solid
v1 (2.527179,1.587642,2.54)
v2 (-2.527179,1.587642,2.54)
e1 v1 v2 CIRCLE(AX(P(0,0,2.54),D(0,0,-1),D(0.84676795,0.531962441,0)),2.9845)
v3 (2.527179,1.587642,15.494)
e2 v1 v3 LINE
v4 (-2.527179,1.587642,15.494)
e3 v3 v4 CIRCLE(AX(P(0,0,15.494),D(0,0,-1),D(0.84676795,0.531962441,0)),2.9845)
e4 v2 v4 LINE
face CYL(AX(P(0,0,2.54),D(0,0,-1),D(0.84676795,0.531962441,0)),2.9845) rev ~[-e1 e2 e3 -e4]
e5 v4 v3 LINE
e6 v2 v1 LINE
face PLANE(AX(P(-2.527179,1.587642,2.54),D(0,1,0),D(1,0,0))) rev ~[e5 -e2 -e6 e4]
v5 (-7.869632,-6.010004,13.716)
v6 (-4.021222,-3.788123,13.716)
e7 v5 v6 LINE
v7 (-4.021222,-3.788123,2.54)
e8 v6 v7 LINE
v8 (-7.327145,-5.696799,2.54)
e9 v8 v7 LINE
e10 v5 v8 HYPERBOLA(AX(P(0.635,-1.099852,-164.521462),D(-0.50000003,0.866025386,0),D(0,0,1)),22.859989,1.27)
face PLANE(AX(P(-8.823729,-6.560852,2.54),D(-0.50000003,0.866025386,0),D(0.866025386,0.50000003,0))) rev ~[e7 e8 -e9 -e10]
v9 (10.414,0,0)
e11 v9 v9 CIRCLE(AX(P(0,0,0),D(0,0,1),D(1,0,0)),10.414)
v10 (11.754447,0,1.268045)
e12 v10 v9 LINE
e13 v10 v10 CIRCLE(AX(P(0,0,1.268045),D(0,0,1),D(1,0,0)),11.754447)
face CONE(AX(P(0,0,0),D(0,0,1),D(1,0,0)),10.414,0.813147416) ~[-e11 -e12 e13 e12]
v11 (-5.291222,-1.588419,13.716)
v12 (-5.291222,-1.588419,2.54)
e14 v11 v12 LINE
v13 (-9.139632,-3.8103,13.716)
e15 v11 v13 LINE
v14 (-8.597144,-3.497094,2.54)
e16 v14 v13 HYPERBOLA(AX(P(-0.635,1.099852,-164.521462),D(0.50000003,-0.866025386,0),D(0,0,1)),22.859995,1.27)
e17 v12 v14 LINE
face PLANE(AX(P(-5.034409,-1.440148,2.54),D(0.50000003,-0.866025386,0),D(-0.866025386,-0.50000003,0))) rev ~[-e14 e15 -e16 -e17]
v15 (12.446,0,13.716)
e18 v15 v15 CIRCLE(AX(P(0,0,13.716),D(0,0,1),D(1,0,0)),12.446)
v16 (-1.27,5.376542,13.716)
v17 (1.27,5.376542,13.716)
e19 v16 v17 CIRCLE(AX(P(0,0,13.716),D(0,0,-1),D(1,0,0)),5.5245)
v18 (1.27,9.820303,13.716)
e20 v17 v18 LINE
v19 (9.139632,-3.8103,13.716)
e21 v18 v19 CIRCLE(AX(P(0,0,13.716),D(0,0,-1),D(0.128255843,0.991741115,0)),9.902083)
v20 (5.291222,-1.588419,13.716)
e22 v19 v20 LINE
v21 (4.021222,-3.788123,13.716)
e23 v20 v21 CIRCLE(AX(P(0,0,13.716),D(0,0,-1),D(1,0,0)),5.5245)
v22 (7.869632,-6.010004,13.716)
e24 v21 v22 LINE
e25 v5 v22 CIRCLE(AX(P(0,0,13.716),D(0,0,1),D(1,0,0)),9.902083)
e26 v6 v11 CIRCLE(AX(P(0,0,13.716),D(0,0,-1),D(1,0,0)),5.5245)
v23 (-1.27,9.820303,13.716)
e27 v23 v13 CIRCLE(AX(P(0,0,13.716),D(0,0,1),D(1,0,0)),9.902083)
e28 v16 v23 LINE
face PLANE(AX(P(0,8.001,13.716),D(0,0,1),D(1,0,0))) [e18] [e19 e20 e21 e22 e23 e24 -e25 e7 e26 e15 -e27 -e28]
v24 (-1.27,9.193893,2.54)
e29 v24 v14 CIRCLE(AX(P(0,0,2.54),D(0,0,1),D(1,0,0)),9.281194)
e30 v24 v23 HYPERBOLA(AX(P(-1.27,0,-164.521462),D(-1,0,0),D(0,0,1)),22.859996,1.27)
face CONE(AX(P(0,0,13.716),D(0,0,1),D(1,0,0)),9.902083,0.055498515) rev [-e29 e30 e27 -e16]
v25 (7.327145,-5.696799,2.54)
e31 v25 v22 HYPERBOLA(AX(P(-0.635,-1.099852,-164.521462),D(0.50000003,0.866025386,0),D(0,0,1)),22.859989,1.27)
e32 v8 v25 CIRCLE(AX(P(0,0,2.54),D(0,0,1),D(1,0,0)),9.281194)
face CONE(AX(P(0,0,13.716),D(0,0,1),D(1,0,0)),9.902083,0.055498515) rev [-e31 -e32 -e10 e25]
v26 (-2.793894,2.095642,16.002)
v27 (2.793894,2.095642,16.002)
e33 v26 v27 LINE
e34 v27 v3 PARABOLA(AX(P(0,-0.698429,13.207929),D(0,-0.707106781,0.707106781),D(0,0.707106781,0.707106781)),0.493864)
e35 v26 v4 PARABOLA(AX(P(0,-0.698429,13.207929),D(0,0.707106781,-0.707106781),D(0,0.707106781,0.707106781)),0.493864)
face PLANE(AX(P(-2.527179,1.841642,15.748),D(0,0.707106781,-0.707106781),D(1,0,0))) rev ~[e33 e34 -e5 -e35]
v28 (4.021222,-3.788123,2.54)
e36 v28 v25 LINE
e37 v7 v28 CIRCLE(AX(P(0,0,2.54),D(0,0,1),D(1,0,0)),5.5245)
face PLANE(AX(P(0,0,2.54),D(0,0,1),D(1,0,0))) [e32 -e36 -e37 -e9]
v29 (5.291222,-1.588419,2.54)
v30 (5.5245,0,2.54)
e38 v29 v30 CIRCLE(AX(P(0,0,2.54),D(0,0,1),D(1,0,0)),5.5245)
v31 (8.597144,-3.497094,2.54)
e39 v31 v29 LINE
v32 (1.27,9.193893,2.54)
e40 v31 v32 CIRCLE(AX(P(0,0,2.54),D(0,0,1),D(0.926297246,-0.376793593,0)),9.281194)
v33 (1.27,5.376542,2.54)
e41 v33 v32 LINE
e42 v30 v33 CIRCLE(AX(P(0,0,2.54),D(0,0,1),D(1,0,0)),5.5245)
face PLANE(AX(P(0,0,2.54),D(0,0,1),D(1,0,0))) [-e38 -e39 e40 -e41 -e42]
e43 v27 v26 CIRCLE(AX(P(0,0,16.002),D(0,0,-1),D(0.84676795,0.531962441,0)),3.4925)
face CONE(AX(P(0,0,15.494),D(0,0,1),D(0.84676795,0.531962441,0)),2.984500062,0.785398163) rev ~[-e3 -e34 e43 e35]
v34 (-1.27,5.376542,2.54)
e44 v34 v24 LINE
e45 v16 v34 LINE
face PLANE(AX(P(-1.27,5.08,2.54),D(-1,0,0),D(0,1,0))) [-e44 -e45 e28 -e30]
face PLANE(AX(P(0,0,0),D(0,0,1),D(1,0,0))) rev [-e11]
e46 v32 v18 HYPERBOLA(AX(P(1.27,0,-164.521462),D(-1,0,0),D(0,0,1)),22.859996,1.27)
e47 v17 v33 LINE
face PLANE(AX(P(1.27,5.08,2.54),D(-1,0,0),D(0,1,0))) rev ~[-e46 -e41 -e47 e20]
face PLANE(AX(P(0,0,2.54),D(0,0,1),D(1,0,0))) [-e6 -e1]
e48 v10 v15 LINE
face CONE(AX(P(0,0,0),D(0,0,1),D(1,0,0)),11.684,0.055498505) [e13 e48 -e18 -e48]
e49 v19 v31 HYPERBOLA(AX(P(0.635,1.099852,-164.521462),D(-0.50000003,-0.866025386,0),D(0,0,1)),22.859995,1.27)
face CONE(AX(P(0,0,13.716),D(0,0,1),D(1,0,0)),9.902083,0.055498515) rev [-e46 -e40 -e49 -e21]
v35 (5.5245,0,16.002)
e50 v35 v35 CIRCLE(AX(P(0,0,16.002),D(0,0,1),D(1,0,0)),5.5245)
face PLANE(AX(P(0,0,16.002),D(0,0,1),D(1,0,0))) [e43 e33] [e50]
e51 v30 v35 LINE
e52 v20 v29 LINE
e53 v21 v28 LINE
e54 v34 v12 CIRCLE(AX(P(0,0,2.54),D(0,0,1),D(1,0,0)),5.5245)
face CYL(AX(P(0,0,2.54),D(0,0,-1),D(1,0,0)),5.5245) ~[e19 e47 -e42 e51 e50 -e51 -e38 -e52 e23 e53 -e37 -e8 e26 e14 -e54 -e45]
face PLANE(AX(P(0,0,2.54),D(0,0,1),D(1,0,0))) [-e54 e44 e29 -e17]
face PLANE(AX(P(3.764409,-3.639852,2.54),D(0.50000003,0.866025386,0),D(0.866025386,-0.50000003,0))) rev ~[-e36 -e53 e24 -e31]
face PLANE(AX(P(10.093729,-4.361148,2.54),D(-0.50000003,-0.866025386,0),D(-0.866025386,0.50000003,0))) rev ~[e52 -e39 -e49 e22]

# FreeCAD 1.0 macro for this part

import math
import FreeCAD as App
import Part
import Sketcher

V = App.Vector
Q = App.Units.Quantity


def edges_at(feature, points):
    """Names of the edges that pass closest to the given points."""
    edges = feature.Shape.Edges
    near = lambda p: min(range(len(edges)), key=lambda i: edges[i].distToShape(Part.Vertex(*p))[0])
    return sorted({f"Edge{near(p) + 1}" for p in points})

doc = App.newDocument("Part")
body = doc.addObject("PartDesign::Body", "Body")

sketch1 = body.newObject("Sketcher::SketchObject", "Sketch")
sketch1.AttachmentSupport = (doc.getObject("XZ_Plane"), [""])
sketch1.MapMode = "FlatFace"
sketch1.addGeometry(Part.LineSegment(V(0, 2.5, 0), V(0, 0, 0)), False)
sketch1.addGeometry(Part.LineSegment(V(0, 0, 0), V(11.7, 0, 0)), False)
sketch1.addGeometry(Part.LineSegment(V(11.7, 0, 0), V(12.4, 13.7, 0)), False)
sketch1.addGeometry(Part.LineSegment(V(12.4, 13.7, 0), V(9.9, 13.7, 0)), False)
sketch1.addGeometry(Part.LineSegment(V(9.9, 13.7, 0), V(9.3, 2.5, 0)), False)
sketch1.addGeometry(Part.LineSegment(V(9.3, 2.5, 0), V(0, 2.5, 0)), False)
sketch1.addConstraint(Sketcher.Constraint("Coincident", 0, 2, 1, 1))
sketch1.addConstraint(Sketcher.Constraint("Coincident", 1, 2, 2, 1))
sketch1.addConstraint(Sketcher.Constraint("Coincident", 2, 2, 3, 1))
sketch1.addConstraint(Sketcher.Constraint("Coincident", 3, 2, 4, 1))
sketch1.addConstraint(Sketcher.Constraint("Coincident", 4, 2, 5, 1))
sketch1.addConstraint(Sketcher.Constraint("Coincident", 5, 2, 0, 1))
sketch1.addConstraint(Sketcher.Constraint("Vertical", 0))
sketch1.addConstraint(Sketcher.Constraint("Horizontal", 1))
sketch1.addConstraint(Sketcher.Constraint("Horizontal", 3))
sketch1.addConstraint(Sketcher.Constraint("Horizontal", 5))
sketch1.addConstraint(Sketcher.Constraint("Coincident", 0, 2, -1, 1))
sketch1.addConstraint(Sketcher.Constraint("Parallel", 2, 4))
sketch1.addConstraint(Sketcher.Constraint("DistanceY", 0, 2, 0, 1, Q("0.1 in")))
sketch1.addConstraint(Sketcher.Constraint("DistanceX", 1, 1, 1, 2, Q("0.46 in")))
sketch1.addConstraint(Sketcher.Constraint("DistanceX", -1, 1, 2, 2, Q("0.49 in")))
sketch1.addConstraint(Sketcher.Constraint("DistanceY", -1, 1, 2, 2, Q("0.54 in")))
sketch1.addConstraint(Sketcher.Constraint("DistanceX", 3, 2, 3, 1, Q("2.543917 mm")))
revolution = body.newObject("PartDesign::Revolution", "Revolution")
revolution.Profile = sketch1
revolution.ReferenceAxis = (sketch1, ["V_Axis"])
revolution.Angle = 360

sketch2 = body.newObject("Sketcher::SketchObject", "Sketch001")
sketch2.AttachmentSupport = (doc.getObject("XY_Plane"), [""])
sketch2.MapMode = "FlatFace"
sketch2.AttachmentOffset = App.Placement(V(0, 0, 0.1 * 25.4), App.Rotation())
sketch2.addGeometry(Part.Circle(V(0, 0, 0), V(0, 0, 1), 5.5), False)
sketch2.addGeometry(Part.LineSegment(V(-2.5, 1.6, 0), V(2.5, 1.6, 0)), False)
sketch2.addGeometry(Part.ArcOfCircle(Part.Circle(V(0, 0, 0), V(0, 0, 1), 3), math.radians(148), math.radians(392)), False)
sketch2.addConstraint(Sketcher.Constraint("Coincident", 1, 1, 2, 1))
sketch2.addConstraint(Sketcher.Constraint("Coincident", 2, 2, 1, 2))
sketch2.addConstraint(Sketcher.Constraint("Horizontal", 1))
sketch2.addConstraint(Sketcher.Constraint("Coincident", 0, 3, -1, 1))
sketch2.addConstraint(Sketcher.Constraint("Coincident", 2, 3, -1, 1))
sketch2.addConstraint(Sketcher.Constraint("Diameter", 0, Q("0.435 in")))
sketch2.addConstraint(Sketcher.Constraint("Radius", 2, Q("0.1175 in")))
sketch2.addConstraint(Sketcher.Constraint("DistanceX", 1, 1, 1, 2, Q("5.054358 mm")))
pad1 = body.newObject("PartDesign::Pad", "Pad")
pad1.Profile = sketch2
pad1.Length = Q("0.53 in")

sketch3 = body.newObject("Sketcher::SketchObject", "Sketch002")
sketch3.AttachmentSupport = (doc.getObject("XY_Plane"), [""])
sketch3.MapMode = "FlatFace"
sketch3.AttachmentOffset = App.Placement(V(0, 0, 0.1 * 25.4), App.Rotation())
sketch3.addGeometry(Part.LineSegment(V(-1.3, 10.9, 0), V(-1.3, 5.1, 0)), False)
sketch3.addGeometry(Part.LineSegment(V(-1.3, 5.1, 0), V(1.3, 5.1, 0)), False)
sketch3.addGeometry(Part.LineSegment(V(1.3, 5.1, 0), V(1.3, 10.9, 0)), False)
sketch3.addGeometry(Part.LineSegment(V(1.3, 10.9, 0), V(-1.3, 10.9, 0)), False)
sketch3.addGeometry(Part.LineSegment(V(-10.1, -4.4, 0), V(-8.8, -6.6, 0)), False)
sketch3.addGeometry(Part.LineSegment(V(-8.8, -6.6, 0), V(-3.8, -3.6, 0)), False)
sketch3.addGeometry(Part.LineSegment(V(-3.8, -3.6, 0), V(-5, -1.4, 0)), False)
sketch3.addGeometry(Part.LineSegment(V(-5, -1.4, 0), V(-10.1, -4.4, 0)), False)
sketch3.addGeometry(Part.LineSegment(V(8.8, -6.6, 0), V(10.1, -4.4, 0)), False)
sketch3.addGeometry(Part.LineSegment(V(10.1, -4.4, 0), V(5, -1.4, 0)), False)
sketch3.addGeometry(Part.LineSegment(V(5, -1.4, 0), V(3.8, -3.6, 0)), False)
sketch3.addGeometry(Part.LineSegment(V(3.8, -3.6, 0), V(8.8, -6.6, 0)), False)
sketch3.addConstraint(Sketcher.Constraint("Coincident", 0, 2, 1, 1))
sketch3.addConstraint(Sketcher.Constraint("Coincident", 1, 2, 2, 1))
sketch3.addConstraint(Sketcher.Constraint("Coincident", 2, 2, 3, 1))
sketch3.addConstraint(Sketcher.Constraint("Coincident", 3, 2, 0, 1))
sketch3.addConstraint(Sketcher.Constraint("Coincident", 4, 2, 5, 1))
sketch3.addConstraint(Sketcher.Constraint("Coincident", 5, 2, 6, 1))
sketch3.addConstraint(Sketcher.Constraint("Coincident", 6, 2, 7, 1))
sketch3.addConstraint(Sketcher.Constraint("Coincident", 7, 2, 4, 1))
sketch3.addConstraint(Sketcher.Constraint("Coincident", 8, 2, 9, 1))
sketch3.addConstraint(Sketcher.Constraint("Coincident", 9, 2, 10, 1))
sketch3.addConstraint(Sketcher.Constraint("Coincident", 10, 2, 11, 1))
sketch3.addConstraint(Sketcher.Constraint("Coincident", 11, 2, 8, 1))
sketch3.addConstraint(Sketcher.Constraint("Vertical", 0))
sketch3.addConstraint(Sketcher.Constraint("Horizontal", 1))
sketch3.addConstraint(Sketcher.Constraint("Vertical", 2))
sketch3.addConstraint(Sketcher.Constraint("Horizontal", 3))
sketch3.addConstraint(Sketcher.Constraint("Symmetric", 7, 2, 8, 2, -2))
sketch3.addConstraint(Sketcher.Constraint("Symmetric", 6, 2, 9, 2, -2))
sketch3.addConstraint(Sketcher.Constraint("Symmetric", 5, 2, 10, 2, -2))
sketch3.addConstraint(Sketcher.Constraint("Symmetric", 4, 2, 11, 2, -2))
sketch3.addConstraint(Sketcher.Constraint("Perpendicular", 4, 5))
sketch3.addConstraint(Sketcher.Constraint("Perpendicular", 5, 6))
sketch3.addConstraint(Sketcher.Constraint("Perpendicular", 6, 7))
sketch3.addConstraint(Sketcher.Constraint("DistanceX", 1, 1, 1, 2, Q("0.1 in")))
sketch3.addConstraint(Sketcher.Constraint("Angle", 4, Q("-59.999994 deg")))
sketch3.addConstraint(Sketcher.Constraint("Distance", 4, Q("0.1 in")))
sketch3.addConstraint(Sketcher.Constraint("DistanceY", 0, 2, 0, 1, Q("0.23 in")))
sketch3.addConstraint(Sketcher.Constraint("DistanceY", -1, 1, 0, 2, Q("0.2 in")))
sketch3.addConstraint(Sketcher.Constraint("Distance", 5, Q("0.23 in")))
sketch3.addConstraint(Sketcher.Constraint("DistanceX", 0, 2, -1, 1, Q("0.05 in")))
sketch3.addConstraint(Sketcher.Constraint("DistanceX", 4, 2, -1, 1, Q("8.823729 mm")))
sketch3.addConstraint(Sketcher.Constraint("DistanceY", 4, 2, -1, 1, Q("6.560852 mm")))
pad2 = body.newObject("PartDesign::Pad", "Pad001")
pad2.Profile = sketch3
pad2.Length = Q("0.44 in")
doc.recompute()

chamfer = body.newObject("PartDesign::Chamfer", "Chamfer")
chamfer.Base = (pad2, edges_at(pad2, [(0, 1.588, 16.002), (0, -2.985, 16.002)]))
chamfer.Size = Q("0.02 in")
doc.recompute()

chamfer2 = body.newObject("PartDesign::Chamfer", "Chamfer001")
chamfer2.Base = (chamfer, edges_at(chamfer, [(-11.684, 0, 0)]))
chamfer2.Size = Q("0.05 in")

doc.recompute()
